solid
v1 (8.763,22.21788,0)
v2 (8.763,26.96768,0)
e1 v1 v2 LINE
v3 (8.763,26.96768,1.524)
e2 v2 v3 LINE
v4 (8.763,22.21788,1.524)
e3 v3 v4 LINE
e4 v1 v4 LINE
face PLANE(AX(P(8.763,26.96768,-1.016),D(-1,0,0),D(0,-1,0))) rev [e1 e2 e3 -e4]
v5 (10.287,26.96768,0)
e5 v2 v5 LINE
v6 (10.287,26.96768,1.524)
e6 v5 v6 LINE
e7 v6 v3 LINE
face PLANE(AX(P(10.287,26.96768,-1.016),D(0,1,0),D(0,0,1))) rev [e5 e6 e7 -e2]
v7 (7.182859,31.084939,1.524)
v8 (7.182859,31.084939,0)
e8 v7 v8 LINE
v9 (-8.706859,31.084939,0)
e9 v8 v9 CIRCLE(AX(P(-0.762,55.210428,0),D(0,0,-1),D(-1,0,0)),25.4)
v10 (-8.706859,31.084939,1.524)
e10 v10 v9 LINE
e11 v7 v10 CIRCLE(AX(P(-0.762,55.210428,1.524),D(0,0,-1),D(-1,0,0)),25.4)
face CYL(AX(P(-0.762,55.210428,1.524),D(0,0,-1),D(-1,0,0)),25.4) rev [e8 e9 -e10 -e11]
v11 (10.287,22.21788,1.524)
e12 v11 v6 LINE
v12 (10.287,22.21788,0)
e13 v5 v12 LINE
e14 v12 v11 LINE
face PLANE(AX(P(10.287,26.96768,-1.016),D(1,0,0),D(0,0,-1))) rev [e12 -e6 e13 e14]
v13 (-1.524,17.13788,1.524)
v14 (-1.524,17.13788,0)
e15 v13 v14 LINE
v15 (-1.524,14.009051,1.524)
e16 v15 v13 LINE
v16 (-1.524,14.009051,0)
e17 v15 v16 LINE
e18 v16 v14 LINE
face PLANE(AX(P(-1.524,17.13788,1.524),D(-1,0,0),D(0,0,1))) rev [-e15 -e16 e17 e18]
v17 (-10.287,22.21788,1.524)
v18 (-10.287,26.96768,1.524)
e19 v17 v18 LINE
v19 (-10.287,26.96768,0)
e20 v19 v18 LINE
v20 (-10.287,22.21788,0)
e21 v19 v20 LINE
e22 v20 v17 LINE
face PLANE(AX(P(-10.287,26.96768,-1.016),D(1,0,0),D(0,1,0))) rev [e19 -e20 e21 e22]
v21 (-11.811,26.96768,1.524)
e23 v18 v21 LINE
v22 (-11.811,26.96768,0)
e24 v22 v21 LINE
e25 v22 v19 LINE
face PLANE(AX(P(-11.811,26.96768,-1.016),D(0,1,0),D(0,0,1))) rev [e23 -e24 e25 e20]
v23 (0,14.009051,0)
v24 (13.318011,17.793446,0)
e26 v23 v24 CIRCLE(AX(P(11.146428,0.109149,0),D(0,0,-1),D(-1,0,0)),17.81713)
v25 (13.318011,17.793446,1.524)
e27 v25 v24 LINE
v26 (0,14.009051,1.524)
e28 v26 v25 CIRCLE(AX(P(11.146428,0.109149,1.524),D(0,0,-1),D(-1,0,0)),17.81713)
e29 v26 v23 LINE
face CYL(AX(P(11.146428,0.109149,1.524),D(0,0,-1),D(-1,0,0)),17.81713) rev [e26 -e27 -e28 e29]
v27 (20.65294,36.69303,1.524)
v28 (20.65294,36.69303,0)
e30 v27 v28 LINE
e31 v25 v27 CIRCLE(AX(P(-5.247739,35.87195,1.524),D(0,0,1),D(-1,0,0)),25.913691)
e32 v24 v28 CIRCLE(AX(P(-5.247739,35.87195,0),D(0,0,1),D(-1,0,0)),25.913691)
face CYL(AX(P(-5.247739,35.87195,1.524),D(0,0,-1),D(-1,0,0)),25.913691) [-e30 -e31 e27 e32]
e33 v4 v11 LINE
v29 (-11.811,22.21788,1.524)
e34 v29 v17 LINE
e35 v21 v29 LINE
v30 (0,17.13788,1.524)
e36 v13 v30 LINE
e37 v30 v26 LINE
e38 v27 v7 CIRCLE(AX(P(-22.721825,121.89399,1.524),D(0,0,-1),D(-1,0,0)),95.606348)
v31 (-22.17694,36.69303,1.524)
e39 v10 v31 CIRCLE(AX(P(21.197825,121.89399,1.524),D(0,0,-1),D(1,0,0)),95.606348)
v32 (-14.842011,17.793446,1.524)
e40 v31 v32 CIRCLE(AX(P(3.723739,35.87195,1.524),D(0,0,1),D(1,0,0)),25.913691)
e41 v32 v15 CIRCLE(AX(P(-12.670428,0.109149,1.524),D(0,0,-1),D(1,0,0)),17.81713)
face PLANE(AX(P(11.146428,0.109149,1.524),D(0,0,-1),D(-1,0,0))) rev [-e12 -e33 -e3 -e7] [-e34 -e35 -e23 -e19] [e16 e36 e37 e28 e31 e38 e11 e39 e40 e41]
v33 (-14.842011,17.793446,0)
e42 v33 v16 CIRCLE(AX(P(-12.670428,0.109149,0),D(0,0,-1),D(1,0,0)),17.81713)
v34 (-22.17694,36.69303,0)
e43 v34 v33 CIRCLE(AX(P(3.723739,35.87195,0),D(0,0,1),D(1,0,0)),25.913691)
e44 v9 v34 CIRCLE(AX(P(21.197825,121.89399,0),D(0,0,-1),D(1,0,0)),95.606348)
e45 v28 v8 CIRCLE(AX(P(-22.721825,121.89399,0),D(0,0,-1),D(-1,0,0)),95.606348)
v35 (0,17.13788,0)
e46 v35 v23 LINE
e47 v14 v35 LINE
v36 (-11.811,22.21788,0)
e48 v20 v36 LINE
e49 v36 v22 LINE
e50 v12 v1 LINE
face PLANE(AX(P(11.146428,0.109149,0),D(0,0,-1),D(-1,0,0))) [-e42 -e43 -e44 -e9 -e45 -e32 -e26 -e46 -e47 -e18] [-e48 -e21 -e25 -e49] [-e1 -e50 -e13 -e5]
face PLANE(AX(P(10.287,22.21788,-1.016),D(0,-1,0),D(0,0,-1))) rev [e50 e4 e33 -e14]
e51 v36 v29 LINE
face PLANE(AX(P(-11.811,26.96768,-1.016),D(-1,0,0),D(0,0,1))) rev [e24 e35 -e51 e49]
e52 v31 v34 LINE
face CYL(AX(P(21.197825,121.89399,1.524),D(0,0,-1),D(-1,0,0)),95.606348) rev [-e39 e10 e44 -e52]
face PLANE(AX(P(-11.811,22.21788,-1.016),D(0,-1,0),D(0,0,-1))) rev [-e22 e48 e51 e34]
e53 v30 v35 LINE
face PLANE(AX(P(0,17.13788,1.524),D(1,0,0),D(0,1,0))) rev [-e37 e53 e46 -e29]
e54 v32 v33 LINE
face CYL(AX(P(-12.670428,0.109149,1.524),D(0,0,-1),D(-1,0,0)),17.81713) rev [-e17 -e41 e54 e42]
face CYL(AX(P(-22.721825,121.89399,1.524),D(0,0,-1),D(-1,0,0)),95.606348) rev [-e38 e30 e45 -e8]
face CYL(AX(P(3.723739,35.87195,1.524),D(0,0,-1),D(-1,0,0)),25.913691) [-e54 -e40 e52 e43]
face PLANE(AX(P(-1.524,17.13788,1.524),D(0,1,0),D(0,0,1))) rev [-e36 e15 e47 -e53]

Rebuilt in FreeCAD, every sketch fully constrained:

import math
import FreeCAD as App
import Part
import Sketcher
from FreeCAD import Vector
Q = App.Units.Quantity

doc = App.newDocument("Part")
body = doc.addObject("PartDesign::Body", "Body")

sketch1 = body.newObject("Sketcher::SketchObject", "Sketch")
sketch1.AttachmentSupport = (doc.getObject("XY_Plane"), [""])
sketch1.MapMode = "FlatFace"
sketch1.addGeometry(Part.LineSegment(Vector(-1.524, 14.009051, 0), Vector(-1.524, 17.13788, 0)), False)
sketch1.addGeometry(Part.LineSegment(Vector(-1.524, 17.13788, 0), Vector(0, 17.13788, 0)), False)
sketch1.addGeometry(Part.LineSegment(Vector(0, 17.13788, 0), Vector(0, 14.009051, 0)), False)
sketch1.addGeometry(Part.ArcOfCircle(Part.Circle(Vector(11.146428, 0.109149, 0), Vector(0, 0, 1), 17.81713), math.radians(82.999282), math.radians(128.726367)), False)
sketch1.addGeometry(Part.ArcOfCircle(Part.Circle(Vector(-5.247739, 35.87195, 0), Vector(0, 0, 1), 25.913691), math.radians(-44.238202), math.radians(1.815732)), False)
sketch1.addGeometry(Part.ArcOfCircle(Part.Circle(Vector(-22.721825, 121.89399, 0), Vector(0, 0, 1), 95.606348), math.radians(-71.772566), math.radians(-63.019913)), False)
sketch1.addGeometry(Part.ArcOfCircle(Part.Circle(Vector(-0.762, 55.210428, 0), Vector(0, 0, 1), 25.4), math.radians(-108.227434), math.radians(-71.772566)), False)
sketch1.addGeometry(Part.ArcOfCircle(Part.Circle(Vector(21.197825, 121.89399, 0), Vector(0, 0, 1), 95.606348), math.radians(-116.980087), math.radians(-108.227434)), False)
sketch1.addGeometry(Part.ArcOfCircle(Part.Circle(Vector(3.723739, 35.87195, 0), Vector(0, 0, 1), 25.913691), math.radians(178.184268), math.radians(224.238202)), False)
sketch1.addGeometry(Part.ArcOfCircle(Part.Circle(Vector(-12.670428, 0.109149, 0), Vector(0, 0, 1), 17.81713), math.radians(51.273633), math.radians(97.000718)), False)
sketch1.addConstraint(Sketcher.Constraint("Coincident", 0, 2, 1, 1))
sketch1.addConstraint(Sketcher.Constraint("Coincident", 1, 2, 2, 1))
sketch1.addConstraint(Sketcher.Constraint("Coincident", 2, 2, 3, 2))
sketch1.addConstraint(Sketcher.Constraint("Coincident", 3, 1, 4, 1))
sketch1.addConstraint(Sketcher.Constraint("Coincident", 4, 2, 5, 2))
sketch1.addConstraint(Sketcher.Constraint("Tangent", 5, 1, 6, 2))
sketch1.addConstraint(Sketcher.Constraint("Tangent", 6, 1, 7, 2))
sketch1.addConstraint(Sketcher.Constraint("Coincident", 7, 1, 8, 1))
sketch1.addConstraint(Sketcher.Constraint("Coincident", 8, 2, 9, 2))
sketch1.addConstraint(Sketcher.Constraint("Coincident", 9, 1, 0, 1))
sketch1.addConstraint(Sketcher.Constraint("Vertical", 0))
sketch1.addConstraint(Sketcher.Constraint("Horizontal", 1))
sketch1.addConstraint(Sketcher.Constraint("Vertical", 2))
sketch1.addConstraint(Sketcher.Constraint("Equal", 5, 7))
sketch1.addConstraint(Sketcher.Constraint("Equal", 4, 8))
sketch1.addConstraint(Sketcher.Constraint("Equal", 3, 9))
sketch1.addConstraint(Sketcher.Constraint("PointOnObject", 1, 2, -2))
sketch1.addConstraint(Sketcher.Constraint("Horizontal", 5, 3, 7, 3))
sketch1.addConstraint(Sketcher.Constraint("Horizontal", 4, 3, 8, 3))
sketch1.addConstraint(Sketcher.Constraint("Horizontal", 3, 3, 9, 3))
sketch1.addConstraint(Sketcher.Constraint("Horizontal", 4, 2, 7, 1))
sketch1.addConstraint(Sketcher.Constraint("Horizontal", 3, 1, 8, 2))
sketch1.addConstraint(Sketcher.Constraint("Horizontal", 2, 2, 9, 1))
sketch1.addConstraint(Sketcher.Constraint("Radius", 6, Q("1 in")))
sketch1.addConstraint(Sketcher.Constraint("DistanceX", 1, 1, 1, 2, Q("0.06 in")))
sketch1.addConstraint(Sketcher.Constraint("Radius", 3, 17.81713))
sketch1.addConstraint(Sketcher.Constraint("Radius", 4, 25.913691))
sketch1.addConstraint(Sketcher.Constraint("Radius", 5, 95.606348))
sketch1.addConstraint(Sketcher.Constraint("DistanceY", 0, 1, 0, 2, 3.128829))
sketch1.addConstraint(Sketcher.Constraint("DistanceY", 3, 3, 4, 3, 35.7628))
sketch1.addConstraint(Sketcher.Constraint("DistanceY", 3, 3, 2, 2, 13.899902))
sketch1.addConstraint(Sketcher.Constraint("DistanceX", 8, 3, 4, 2, 16.929201))
sketch1.addConstraint(Sketcher.Constraint("DistanceX", 4, 3, 5, 1, 12.430598))
sketch1.addConstraint(Sketcher.Constraint("DistanceY", -1, 1, 3, 3, 0.109149))
sketch1.addConstraint(Sketcher.Constraint("DistanceX", 4, 3, -1, 1, 5.247739))
pad1 = body.newObject("PartDesign::Pad", "Pad")
pad1.Profile = sketch1
pad1.Length = Q("0.06 in")

sketch2 = body.newObject("Sketcher::SketchObject", "Sketch001")
sketch2.AttachmentSupport = (doc.getObject("XY_Plane"), [""])
sketch2.MapMode = "FlatFace"
sketch2.AttachmentOffset = App.Placement(Vector(0, 0, 0.06 * 25.4), App.Rotation())
sketch2.addGeometry(Part.LineSegment(Vector(-11.8, 27, 0), Vector(-11.8, 22.2, 0)), False)
sketch2.addGeometry(Part.LineSegment(Vector(-11.8, 22.2, 0), Vector(-10.3, 22.2, 0)), False)
sketch2.addGeometry(Part.LineSegment(Vector(-10.3, 22.2, 0), Vector(-10.3, 27, 0)), False)
sketch2.addGeometry(Part.LineSegment(Vector(-10.3, 27, 0), Vector(-11.8, 27, 0)), False)
sketch2.addGeometry(Part.LineSegment(Vector(8.8, 27, 0), Vector(8.8, 22.2, 0)), False)
sketch2.addGeometry(Part.LineSegment(Vector(8.8, 22.2, 0), Vector(10.3, 22.2, 0)), False)
sketch2.addGeometry(Part.LineSegment(Vector(10.3, 22.2, 0), Vector(10.3, 27, 0)), False)
sketch2.addGeometry(Part.LineSegment(Vector(10.3, 27, 0), Vector(8.8, 27, 0)), False)
sketch2.addConstraint(Sketcher.Constraint("Coincident", 0, 2, 1, 1))
sketch2.addConstraint(Sketcher.Constraint("Coincident", 1, 2, 2, 1))
sketch2.addConstraint(Sketcher.Constraint("Coincident", 2, 2, 3, 1))
sketch2.addConstraint(Sketcher.Constraint("Coincident", 3, 2, 0, 1))
sketch2.addConstraint(Sketcher.Constraint("Coincident", 4, 2, 5, 1))
sketch2.addConstraint(Sketcher.Constraint("Coincident", 5, 2, 6, 1))
sketch2.addConstraint(Sketcher.Constraint("Coincident", 6, 2, 7, 1))
sketch2.addConstraint(Sketcher.Constraint("Coincident", 7, 2, 4, 1))
sketch2.addConstraint(Sketcher.Constraint("Vertical", 0))
sketch2.addConstraint(Sketcher.Constraint("Horizontal", 1))
sketch2.addConstraint(Sketcher.Constraint("Vertical", 2))
sketch2.addConstraint(Sketcher.Constraint("Horizontal", 3))
sketch2.addConstraint(Sketcher.Constraint("Vertical", 4))
sketch2.addConstraint(Sketcher.Constraint("Horizontal", 5))
sketch2.addConstraint(Sketcher.Constraint("Vertical", 6))
sketch2.addConstraint(Sketcher.Constraint("Horizontal", 7))
sketch2.addConstraint(Sketcher.Constraint("Symmetric", 1, 2, 5, 2, -2))
sketch2.addConstraint(Sketcher.Constraint("Horizontal", 3, 2, 6, 2))
sketch2.addConstraint(Sketcher.Constraint("Equal", 3, 5))
sketch2.addConstraint(Sketcher.Constraint("DistanceX", 1, 1, 1, 2, Q("0.06 in")))
sketch2.addConstraint(Sketcher.Constraint("DistanceY", 0, 2, 0, 1, Q("0.187 in")))
sketch2.addConstraint(Sketcher.Constraint("DistanceX", 1, 2, 4, 2, Q("0.75 in")))
sketch2.addConstraint(Sketcher.Constraint("DistanceY", -1, 1, 0, 2, 22.21788))
pocket1 = body.newObject("PartDesign::Pocket", "Pocket")
pocket1.Profile = sketch2
pocket1.Length = Q("0.1 in")

doc.recompute()
